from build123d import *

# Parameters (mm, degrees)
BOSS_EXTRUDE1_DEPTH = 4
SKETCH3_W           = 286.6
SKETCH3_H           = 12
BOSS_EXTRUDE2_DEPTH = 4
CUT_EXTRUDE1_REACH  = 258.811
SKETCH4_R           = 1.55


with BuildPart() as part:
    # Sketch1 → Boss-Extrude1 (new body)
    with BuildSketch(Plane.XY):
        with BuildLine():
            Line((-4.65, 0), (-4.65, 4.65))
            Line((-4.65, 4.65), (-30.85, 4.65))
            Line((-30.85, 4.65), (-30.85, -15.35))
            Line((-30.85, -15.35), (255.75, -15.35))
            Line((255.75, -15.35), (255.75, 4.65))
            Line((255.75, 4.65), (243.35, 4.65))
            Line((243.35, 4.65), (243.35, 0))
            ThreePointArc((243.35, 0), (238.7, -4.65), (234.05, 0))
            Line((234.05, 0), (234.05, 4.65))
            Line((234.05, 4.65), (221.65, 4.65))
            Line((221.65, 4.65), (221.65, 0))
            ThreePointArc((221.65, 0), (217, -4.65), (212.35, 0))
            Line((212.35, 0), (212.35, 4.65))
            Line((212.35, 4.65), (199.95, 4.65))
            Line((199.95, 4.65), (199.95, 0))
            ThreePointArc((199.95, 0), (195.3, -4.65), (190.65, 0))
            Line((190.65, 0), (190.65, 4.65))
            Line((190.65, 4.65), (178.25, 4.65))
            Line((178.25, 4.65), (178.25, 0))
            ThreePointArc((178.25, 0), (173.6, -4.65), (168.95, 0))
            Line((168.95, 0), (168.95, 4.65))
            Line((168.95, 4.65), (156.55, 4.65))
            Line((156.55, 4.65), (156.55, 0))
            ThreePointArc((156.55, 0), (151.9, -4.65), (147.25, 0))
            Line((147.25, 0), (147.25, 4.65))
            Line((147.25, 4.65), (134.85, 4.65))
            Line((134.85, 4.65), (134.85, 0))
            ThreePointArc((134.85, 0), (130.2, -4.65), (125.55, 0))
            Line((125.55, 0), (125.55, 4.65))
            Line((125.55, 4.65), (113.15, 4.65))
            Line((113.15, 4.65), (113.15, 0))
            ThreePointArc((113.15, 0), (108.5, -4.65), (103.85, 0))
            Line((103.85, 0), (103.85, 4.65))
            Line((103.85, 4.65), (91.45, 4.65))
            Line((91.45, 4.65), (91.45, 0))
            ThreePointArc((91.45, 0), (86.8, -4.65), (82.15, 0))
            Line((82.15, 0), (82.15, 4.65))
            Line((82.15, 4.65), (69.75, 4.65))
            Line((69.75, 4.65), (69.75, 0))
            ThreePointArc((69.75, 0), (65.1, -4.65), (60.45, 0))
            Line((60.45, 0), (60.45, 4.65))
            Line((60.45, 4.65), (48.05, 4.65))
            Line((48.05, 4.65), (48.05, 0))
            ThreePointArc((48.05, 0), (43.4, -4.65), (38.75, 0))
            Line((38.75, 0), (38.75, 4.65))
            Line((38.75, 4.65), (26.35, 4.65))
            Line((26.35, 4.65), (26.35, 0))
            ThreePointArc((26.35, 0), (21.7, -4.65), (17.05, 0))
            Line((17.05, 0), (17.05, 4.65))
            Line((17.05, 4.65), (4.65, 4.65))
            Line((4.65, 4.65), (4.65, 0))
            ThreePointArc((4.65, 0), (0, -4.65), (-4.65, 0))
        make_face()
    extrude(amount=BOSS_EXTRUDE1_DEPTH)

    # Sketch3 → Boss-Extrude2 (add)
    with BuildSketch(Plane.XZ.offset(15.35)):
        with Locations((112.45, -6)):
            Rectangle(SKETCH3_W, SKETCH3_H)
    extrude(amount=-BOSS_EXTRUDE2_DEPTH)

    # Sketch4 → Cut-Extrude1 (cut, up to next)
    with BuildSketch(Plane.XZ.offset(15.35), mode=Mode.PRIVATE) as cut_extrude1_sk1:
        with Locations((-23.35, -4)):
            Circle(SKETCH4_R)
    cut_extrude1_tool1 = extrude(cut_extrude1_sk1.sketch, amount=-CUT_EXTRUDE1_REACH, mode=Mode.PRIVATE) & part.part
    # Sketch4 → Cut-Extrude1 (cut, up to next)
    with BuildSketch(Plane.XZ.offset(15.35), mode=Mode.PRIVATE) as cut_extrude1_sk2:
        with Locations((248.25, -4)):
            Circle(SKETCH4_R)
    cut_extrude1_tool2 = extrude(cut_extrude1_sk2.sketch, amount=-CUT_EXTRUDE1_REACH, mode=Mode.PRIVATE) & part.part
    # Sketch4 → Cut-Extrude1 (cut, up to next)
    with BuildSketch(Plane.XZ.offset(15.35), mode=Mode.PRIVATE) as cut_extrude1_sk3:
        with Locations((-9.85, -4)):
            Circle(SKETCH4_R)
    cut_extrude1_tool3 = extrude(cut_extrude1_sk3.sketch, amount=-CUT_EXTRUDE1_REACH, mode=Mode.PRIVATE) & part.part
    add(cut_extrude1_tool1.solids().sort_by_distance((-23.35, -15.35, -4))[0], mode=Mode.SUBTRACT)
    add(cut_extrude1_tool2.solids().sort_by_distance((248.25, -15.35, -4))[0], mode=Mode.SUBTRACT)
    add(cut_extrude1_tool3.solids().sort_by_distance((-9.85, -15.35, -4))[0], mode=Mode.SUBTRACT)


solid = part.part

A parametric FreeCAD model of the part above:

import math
import FreeCAD as App
import Part
import Sketcher

doc = App.newDocument("Part")
params = doc.addObject("Spreadsheet::Sheet", "Params")
for row, (alias, value) in enumerate([
    ("sketch1_height", "20 mm"),
    ("sketch1_radius", "4.65 mm"),
    ("sketch1_width", "26.2 mm"),
    ("sketch1_width2", "286.6 mm"),
    ("sketch1_height2", "4.65 mm"),
    ("pad1_length", "4 mm"),
    ("sketch2_height", "12 mm"),
    ("sketch2_width", "286.6 mm"),
    ("pad2_length", "4 mm"),
    ("sketch3_diameter", "3.1 mm"),
    ("sketch4_diameter", "3.1 mm"),
    ("sketch5_diameter", "3.1 mm"),
], start=1):
    params.set(f"A{row}", alias)
    params.set(f"B{row}", "=" + value)
    params.setAlias(f"B{row}", alias)

body = doc.addObject("PartDesign::Body", "Body")

# Sketch on XY plane
sketch1 = body.newObject("Sketcher::SketchObject", "Sketch")
sketch1.AttachmentSupport = (doc.getObject("XY_Plane"), [""])
sketch1.MapMode = "FlatFace"
sketch1.addGeometry(Part.LineSegment(App.Vector(-4.65, 0, 0), App.Vector(-4.65, 4.65, 0)), False)
sketch1.addGeometry(Part.LineSegment(App.Vector(-4.65, 4.65, 0), App.Vector(-30.85, 4.65, 0)), False)
sketch1.addGeometry(Part.LineSegment(App.Vector(-30.85, 4.65, 0), App.Vector(-30.85, -15.35, 0)), False)
sketch1.addGeometry(Part.LineSegment(App.Vector(-30.85, -15.35, 0), App.Vector(255.75, -15.35, 0)), False)
sketch1.addGeometry(Part.LineSegment(App.Vector(255.75, -15.35, 0), App.Vector(255.75, 4.65, 0)), False)
sketch1.addGeometry(Part.LineSegment(App.Vector(255.75, 4.65, 0), App.Vector(243.35, 4.65, 0)), False)
sketch1.addGeometry(Part.LineSegment(App.Vector(243.35, 4.65, 0), App.Vector(243.35, 0, 0)), False)
sketch1.addGeometry(Part.ArcOfCircle(Part.Circle(App.Vector(238.7, 0, 0), App.Vector(0, 0, 1), 4.65), math.radians(180), math.radians(360)), False)
sketch1.addGeometry(Part.LineSegment(App.Vector(234.05, 0, 0), App.Vector(234.05, 4.65, 0)), False)
sketch1.addGeometry(Part.LineSegment(App.Vector(234.05, 4.65, 0), App.Vector(221.65, 4.65, 0)), False)
sketch1.addGeometry(Part.LineSegment(App.Vector(221.65, 4.65, 0), App.Vector(221.65, 0, 0)), False)
sketch1.addGeometry(Part.ArcOfCircle(Part.Circle(App.Vector(217, 0, 0), App.Vector(0, 0, 1), 4.65), math.radians(180), math.radians(360)), False)
sketch1.addGeometry(Part.LineSegment(App.Vector(212.35, 0, 0), App.Vector(212.35, 4.65, 0)), False)
sketch1.addGeometry(Part.LineSegment(App.Vector(212.35, 4.65, 0), App.Vector(199.95, 4.65, 0)), False)
sketch1.addGeometry(Part.LineSegment(App.Vector(199.95, 4.65, 0), App.Vector(199.95, 0, 0)), False)
sketch1.addGeometry(Part.ArcOfCircle(Part.Circle(App.Vector(195.3, 0, 0), App.Vector(0, 0, 1), 4.65), math.radians(180), math.radians(360)), False)
sketch1.addGeometry(Part.LineSegment(App.Vector(190.65, 0, 0), App.Vector(190.65, 4.65, 0)), False)
sketch1.addGeometry(Part.LineSegment(App.Vector(190.65, 4.65, 0), App.Vector(178.25, 4.65, 0)), False)
sketch1.addGeometry(Part.LineSegment(App.Vector(178.25, 4.65, 0), App.Vector(178.25, 0, 0)), False)
sketch1.addGeometry(Part.ArcOfCircle(Part.Circle(App.Vector(173.6, 0, 0), App.Vector(0, 0, 1), 4.65), math.radians(180), math.radians(360)), False)
sketch1.addGeometry(Part.LineSegment(App.Vector(168.95, 0, 0), App.Vector(168.95, 4.65, 0)), False)
sketch1.addGeometry(Part.LineSegment(App.Vector(168.95, 4.65, 0), App.Vector(156.55, 4.65, 0)), False)
sketch1.addGeometry(Part.LineSegment(App.Vector(156.55, 4.65, 0), App.Vector(156.55, 0, 0)), False)
sketch1.addGeometry(Part.ArcOfCircle(Part.Circle(App.Vector(151.9, 0, 0), App.Vector(0, 0, 1), 4.65), math.radians(180), math.radians(360)), False)
sketch1.addGeometry(Part.LineSegment(App.Vector(147.25, 0, 0), App.Vector(147.25, 4.65, 0)), False)
sketch1.addGeometry(Part.LineSegment(App.Vector(147.25, 4.65, 0), App.Vector(134.85, 4.65, 0)), False)
sketch1.addGeometry(Part.LineSegment(App.Vector(134.85, 4.65, 0), App.Vector(134.85, 0, 0)), False)
sketch1.addGeometry(Part.ArcOfCircle(Part.Circle(App.Vector(130.2, 0, 0), App.Vector(0, 0, 1), 4.65), math.radians(180), math.radians(360)), False)
sketch1.addGeometry(Part.LineSegment(App.Vector(125.55, 0, 0), App.Vector(125.55, 4.65, 0)), False)
sketch1.addGeometry(Part.LineSegment(App.Vector(125.55, 4.65, 0), App.Vector(113.15, 4.65, 0)), False)
sketch1.addGeometry(Part.LineSegment(App.Vector(113.15, 4.65, 0), App.Vector(113.15, 0, 0)), False)
sketch1.addGeometry(Part.ArcOfCircle(Part.Circle(App.Vector(108.5, 0, 0), App.Vector(0, 0, 1), 4.65), math.radians(180), math.radians(360)), False)
sketch1.addGeometry(Part.LineSegment(App.Vector(103.85, 0, 0), App.Vector(103.85, 4.65, 0)), False)
sketch1.addGeometry(Part.LineSegment(App.Vector(103.85, 4.65, 0), App.Vector(91.45, 4.65, 0)), False)
sketch1.addGeometry(Part.LineSegment(App.Vector(91.45, 4.65, 0), App.Vector(91.45, 0, 0)), False)
sketch1.addGeometry(Part.ArcOfCircle(Part.Circle(App.Vector(86.8, 0, 0), App.Vector(0, 0, 1), 4.65), math.radians(180), math.radians(360)), False)
sketch1.addGeometry(Part.LineSegment(App.Vector(82.15, 0, 0), App.Vector(82.15, 4.65, 0)), False)
sketch1.addGeometry(Part.LineSegment(App.Vector(82.15, 4.65, 0), App.Vector(69.75, 4.65, 0)), False)
sketch1.addGeometry(Part.LineSegment(App.Vector(69.75, 4.65, 0), App.Vector(69.75, 0, 0)), False)
sketch1.addGeometry(Part.ArcOfCircle(Part.Circle(App.Vector(65.1, 0, 0), App.Vector(0, 0, 1), 4.65), math.radians(180), math.radians(360)), False)
sketch1.addGeometry(Part.LineSegment(App.Vector(60.45, 0, 0), App.Vector(60.45, 4.65, 0)), False)
sketch1.addGeometry(Part.LineSegment(App.Vector(60.45, 4.65, 0), App.Vector(48.05, 4.65, 0)), False)
sketch1.addGeometry(Part.LineSegment(App.Vector(48.05, 4.65, 0), App.Vector(48.05, 0, 0)), False)
sketch1.addGeometry(Part.ArcOfCircle(Part.Circle(App.Vector(43.4, 0, 0), App.Vector(0, 0, 1), 4.65), math.radians(180), math.radians(360)), False)
sketch1.addGeometry(Part.LineSegment(App.Vector(38.75, 0, 0), App.Vector(38.75, 4.65, 0)), False)
sketch1.addGeometry(Part.LineSegment(App.Vector(38.75, 4.65, 0), App.Vector(26.35, 4.65, 0)), False)
sketch1.addGeometry(Part.LineSegment(App.Vector(26.35, 4.65, 0), App.Vector(26.35, 0, 0)), False)
sketch1.addGeometry(Part.ArcOfCircle(Part.Circle(App.Vector(21.7, 0, 0), App.Vector(0, 0, 1), 4.65), math.radians(180), math.radians(360)), False)
sketch1.addGeometry(Part.LineSegment(App.Vector(17.05, 0, 0), App.Vector(17.05, 4.65, 0)), False)
sketch1.addGeometry(Part.LineSegment(App.Vector(17.05, 4.65, 0), App.Vector(4.65, 4.65, 0)), False)
sketch1.addGeometry(Part.LineSegment(App.Vector(4.65, 4.65, 0), App.Vector(4.65, 0, 0)), False)
sketch1.addGeometry(Part.ArcOfCircle(Part.Circle(App.Vector(0, 0, 0), App.Vector(0, 0, 1), 4.65), math.radians(180), math.radians(360)), False)
sketch1.addConstraint(Sketcher.Constraint("Coincident", 0, 2, 1, 1))
sketch1.addConstraint(Sketcher.Constraint("Coincident", 1, 2, 2, 1))
sketch1.addConstraint(Sketcher.Constraint("Coincident", 2, 2, 3, 1))
sketch1.addConstraint(Sketcher.Constraint("Coincident", 3, 2, 4, 1))
sketch1.addConstraint(Sketcher.Constraint("Coincident", 4, 2, 5, 1))
sketch1.addConstraint(Sketcher.Constraint("Coincident", 5, 2, 6, 1))
sketch1.addConstraint(Sketcher.Constraint("Tangent", 6, 2, 7, 2))
sketch1.addConstraint(Sketcher.Constraint("Tangent", 7, 1, 8, 1))
sketch1.addConstraint(Sketcher.Constraint("Coincident", 8, 2, 9, 1))
sketch1.addConstraint(Sketcher.Constraint("Coincident", 9, 2, 10, 1))
sketch1.addConstraint(Sketcher.Constraint("Tangent", 10, 2, 11, 2))
sketch1.addConstraint(Sketcher.Constraint("Tangent", 11, 1, 12, 1))
sketch1.addConstraint(Sketcher.Constraint("Coincident", 12, 2, 13, 1))
sketch1.addConstraint(Sketcher.Constraint("Coincident", 13, 2, 14, 1))
sketch1.addConstraint(Sketcher.Constraint("Tangent", 14, 2, 15, 2))
sketch1.addConstraint(Sketcher.Constraint("Tangent", 15, 1, 16, 1))
sketch1.addConstraint(Sketcher.Constraint("Coincident", 16, 2, 17, 1))
sketch1.addConstraint(Sketcher.Constraint("Coincident", 17, 2, 18, 1))
sketch1.addConstraint(Sketcher.Constraint("Tangent", 18, 2, 19, 2))
sketch1.addConstraint(Sketcher.Constraint("Tangent", 19, 1, 20, 1))
sketch1.addConstraint(Sketcher.Constraint("Coincident", 20, 2, 21, 1))
sketch1.addConstraint(Sketcher.Constraint("Coincident", 21, 2, 22, 1))
sketch1.addConstraint(Sketcher.Constraint("Tangent", 22, 2, 23, 2))
sketch1.addConstraint(Sketcher.Constraint("Tangent", 23, 1, 24, 1))
sketch1.addConstraint(Sketcher.Constraint("Coincident", 24, 2, 25, 1))
sketch1.addConstraint(Sketcher.Constraint("Coincident", 25, 2, 26, 1))
sketch1.addConstraint(Sketcher.Constraint("Tangent", 26, 2, 27, 2))
sketch1.addConstraint(Sketcher.Constraint("Tangent", 27, 1, 28, 1))
sketch1.addConstraint(Sketcher.Constraint("Coincident", 28, 2, 29, 1))
sketch1.addConstraint(Sketcher.Constraint("Coincident", 29, 2, 30, 1))
sketch1.addConstraint(Sketcher.Constraint("Tangent", 30, 2, 31, 2))
sketch1.addConstraint(Sketcher.Constraint("Tangent", 31, 1, 32, 1))
sketch1.addConstraint(Sketcher.Constraint("Coincident", 32, 2, 33, 1))
sketch1.addConstraint(Sketcher.Constraint("Coincident", 33, 2, 34, 1))
sketch1.addConstraint(Sketcher.Constraint("Tangent", 34, 2, 35, 2))
sketch1.addConstraint(Sketcher.Constraint("Tangent", 35, 1, 36, 1))
sketch1.addConstraint(Sketcher.Constraint("Coincident", 36, 2, 37, 1))
sketch1.addConstraint(Sketcher.Constraint("Coincident", 37, 2, 38, 1))
sketch1.addConstraint(Sketcher.Constraint("Tangent", 38, 2, 39, 2))
sketch1.addConstraint(Sketcher.Constraint("Tangent", 39, 1, 40, 1))
sketch1.addConstraint(Sketcher.Constraint("Coincident", 40, 2, 41, 1))
sketch1.addConstraint(Sketcher.Constraint("Coincident", 41, 2, 42, 1))
sketch1.addConstraint(Sketcher.Constraint("Tangent", 42, 2, 43, 2))
sketch1.addConstraint(Sketcher.Constraint("Tangent", 43, 1, 44, 1))
sketch1.addConstraint(Sketcher.Constraint("Coincident", 44, 2, 45, 1))
sketch1.addConstraint(Sketcher.Constraint("Coincident", 45, 2, 46, 1))
sketch1.addConstraint(Sketcher.Constraint("Tangent", 46, 2, 47, 2))
sketch1.addConstraint(Sketcher.Constraint("Tangent", 47, 1, 48, 1))
sketch1.addConstraint(Sketcher.Constraint("Coincident", 48, 2, 49, 1))
sketch1.addConstraint(Sketcher.Constraint("Coincident", 49, 2, 50, 1))
sketch1.addConstraint(Sketcher.Constraint("Tangent", 50, 2, 51, 2))
sketch1.addConstraint(Sketcher.Constraint("Tangent", 51, 1, 0, 1))
sketch1.addConstraint(Sketcher.Constraint("Vertical", 0))
sketch1.addConstraint(Sketcher.Constraint("Horizontal", 1))
sketch1.addConstraint(Sketcher.Constraint("Vertical", 2))
sketch1.addConstraint(Sketcher.Constraint("Horizontal", 3))
sketch1.addConstraint(Sketcher.Constraint("Vertical", 4))
sketch1.addConstraint(Sketcher.Constraint("Horizontal", 5))
sketch1.addConstraint(Sketcher.Constraint("Vertical", 6))
sketch1.addConstraint(Sketcher.Constraint("Vertical", 8))
sketch1.addConstraint(Sketcher.Constraint("Horizontal", 9))
sketch1.addConstraint(Sketcher.Constraint("Vertical", 10))
sketch1.addConstraint(Sketcher.Constraint("Vertical", 12))
sketch1.addConstraint(Sketcher.Constraint("Horizontal", 13))
sketch1.addConstraint(Sketcher.Constraint("Vertical", 14))
sketch1.addConstraint(Sketcher.Constraint("Vertical", 16))
sketch1.addConstraint(Sketcher.Constraint("Horizontal", 17))
sketch1.addConstraint(Sketcher.Constraint("Vertical", 18))
sketch1.addConstraint(Sketcher.Constraint("Vertical", 20))
sketch1.addConstraint(Sketcher.Constraint("Horizontal", 21))
sketch1.addConstraint(Sketcher.Constraint("Vertical", 22))
sketch1.addConstraint(Sketcher.Constraint("Vertical", 24))
sketch1.addConstraint(Sketcher.Constraint("Horizontal", 25))
sketch1.addConstraint(Sketcher.Constraint("Vertical", 26))
sketch1.addConstraint(Sketcher.Constraint("Vertical", 28))
sketch1.addConstraint(Sketcher.Constraint("Horizontal", 29))
sketch1.addConstraint(Sketcher.Constraint("Vertical", 30))
sketch1.addConstraint(Sketcher.Constraint("Vertical", 32))
sketch1.addConstraint(Sketcher.Constraint("Horizontal", 33))
sketch1.addConstraint(Sketcher.Constraint("Vertical", 34))
sketch1.addConstraint(Sketcher.Constraint("Vertical", 36))
sketch1.addConstraint(Sketcher.Constraint("Horizontal", 37))
sketch1.addConstraint(Sketcher.Constraint("Vertical", 38))
sketch1.addConstraint(Sketcher.Constraint("Vertical", 40))
sketch1.addConstraint(Sketcher.Constraint("Horizontal", 41))
sketch1.addConstraint(Sketcher.Constraint("Vertical", 42))
sketch1.addConstraint(Sketcher.Constraint("Vertical", 44))
sketch1.addConstraint(Sketcher.Constraint("Horizontal", 45))
sketch1.addConstraint(Sketcher.Constraint("Vertical", 46))
sketch1.addConstraint(Sketcher.Constraint("Vertical", 48))
sketch1.addConstraint(Sketcher.Constraint("Horizontal", 49))
sketch1.addConstraint(Sketcher.Constraint("Vertical", 50))
sketch1.addConstraint(Sketcher.Constraint("Coincident", 51, 3, -1, 1))
sketch1.addConstraint(Sketcher.Constraint("Equal", 7, 11))
sketch1.addConstraint(Sketcher.Constraint("Equal", 11, 15))
sketch1.addConstraint(Sketcher.Constraint("Equal", 15, 19))
sketch1.addConstraint(Sketcher.Constraint("Equal", 19, 23))
sketch1.addConstraint(Sketcher.Constraint("Equal", 23, 27))
sketch1.addConstraint(Sketcher.Constraint("Equal", 27, 31))
sketch1.addConstraint(Sketcher.Constraint("Equal", 31, 35))
sketch1.addConstraint(Sketcher.Constraint("Equal", 35, 39))
sketch1.addConstraint(Sketcher.Constraint("Equal", 39, 43))
sketch1.addConstraint(Sketcher.Constraint("Equal", 43, 47))
sketch1.addConstraint(Sketcher.Constraint("Equal", 47, 51))
sketch1.addConstraint(Sketcher.Constraint("PointOnObject", 7, 3, -1))
sketch1.addConstraint(Sketcher.Constraint("PointOnObject", 11, 3, -1))
sketch1.addConstraint(Sketcher.Constraint("PointOnObject", 15, 3, -1))
sketch1.addConstraint(Sketcher.Constraint("PointOnObject", 19, 3, -1))
sketch1.addConstraint(Sketcher.Constraint("PointOnObject", 23, 3, -1))
sketch1.addConstraint(Sketcher.Constraint("PointOnObject", 27, 3, -1))
sketch1.addConstraint(Sketcher.Constraint("PointOnObject", 31, 3, -1))
sketch1.addConstraint(Sketcher.Constraint("PointOnObject", 35, 3, -1))
sketch1.addConstraint(Sketcher.Constraint("PointOnObject", 39, 3, -1))
sketch1.addConstraint(Sketcher.Constraint("PointOnObject", 43, 3, -1))
sketch1.addConstraint(Sketcher.Constraint("PointOnObject", 47, 3, -1))
sketch1.addConstraint(Sketcher.Constraint("Horizontal", 1, 2, 4, 2))
sketch1.addConstraint(Sketcher.Constraint("Horizontal", 5, 2, 8, 2))
sketch1.addConstraint(Sketcher.Constraint("Horizontal", 9, 2, 12, 2))
sketch1.addConstraint(Sketcher.Constraint("Horizontal", 13, 2, 16, 2))
sketch1.addConstraint(Sketcher.Constraint("Horizontal", 17, 2, 20, 2))
sketch1.addConstraint(Sketcher.Constraint("Horizontal", 21, 2, 24, 2))
sketch1.addConstraint(Sketcher.Constraint("Horizontal", 25, 2, 28, 2))
sketch1.addConstraint(Sketcher.Constraint("Horizontal", 29, 2, 32, 2))
sketch1.addConstraint(Sketcher.Constraint("Horizontal", 33, 2, 36, 2))
sketch1.addConstraint(Sketcher.Constraint("Horizontal", 37, 2, 40, 2))
sketch1.addConstraint(Sketcher.Constraint("Horizontal", 41, 2, 44, 2))
sketch1.addConstraint(Sketcher.Constraint("Horizontal", 45, 2, 48, 2))
sketch1.addConstraint(Sketcher.Constraint("Equal", 5, 9))
sketch1.addConstraint(Sketcher.Constraint("Equal", 9, 13))
sketch1.addConstraint(Sketcher.Constraint("Equal", 13, 17))
sketch1.addConstraint(Sketcher.Constraint("Equal", 17, 21))
sketch1.addConstraint(Sketcher.Constraint("Equal", 21, 25))
sketch1.addConstraint(Sketcher.Constraint("Equal", 25, 29))
sketch1.addConstraint(Sketcher.Constraint("Equal", 29, 33))
sketch1.addConstraint(Sketcher.Constraint("Equal", 33, 37))
sketch1.addConstraint(Sketcher.Constraint("Equal", 37, 41))
sketch1.addConstraint(Sketcher.Constraint("Equal", 41, 45))
sketch1.addConstraint(Sketcher.Constraint("Equal", 45, 49))
sketch1.addConstraint(Sketcher.Constraint("DistanceY", 2, 2, 2, 1, 20.0))
sketch1.addConstraint(Sketcher.Constraint("Radius", 7, 4.65))
sketch1.addConstraint(Sketcher.Constraint("DistanceX", 1, 2, 1, 1, 26.2))
sketch1.addConstraint(Sketcher.Constraint("DistanceX", 3, 1, 3, 2, 286.6))
sketch1.addConstraint(Sketcher.Constraint("DistanceY", 0, 1, 0, 2, 4.65))
sketch1.setExpression("Constraints[138]", "Params.sketch1_height")
sketch1.setExpression("Constraints[139]", "Params.sketch1_radius")
sketch1.setExpression("Constraints[140]", "Params.sketch1_width")
sketch1.setExpression("Constraints[141]", "Params.sketch1_width2")
sketch1.setExpression("Constraints[142]", "Params.sketch1_height2")
pad1 = body.newObject("PartDesign::Pad", "Pad")
pad1.Profile = sketch1
pad1.setExpression("Length", "Params.pad1_length")

# Sketch on XZ plane
sketch2 = body.newObject("Sketcher::SketchObject", "Sketch001")
sketch2.AttachmentSupport = (doc.getObject("XZ_Plane"), [""])
sketch2.MapMode = "FlatFace"
sketch2.AttachmentOffset = App.Placement(App.Vector(0, 0, 15.35), App.Rotation())
sketch2.addGeometry(Part.LineSegment(App.Vector(-30.85, 0, 0), App.Vector(-30.85, -12, 0)), False)
sketch2.addGeometry(Part.LineSegment(App.Vector(-30.85, -12, 0), App.Vector(255.75, -12, 0)), False)
sketch2.addGeometry(Part.LineSegment(App.Vector(255.75, -12, 0), App.Vector(255.75, 0, 0)), False)
sketch2.addGeometry(Part.LineSegment(App.Vector(255.75, 0, 0), App.Vector(-30.85, 0, 0)), False)
sketch2.addConstraint(Sketcher.Constraint("Coincident", 0, 2, 1, 1))
sketch2.addConstraint(Sketcher.Constraint("Coincident", 1, 2, 2, 1))
sketch2.addConstraint(Sketcher.Constraint("Coincident", 2, 2, 3, 1))
sketch2.addConstraint(Sketcher.Constraint("Coincident", 3, 2, 0, 1))
sketch2.addConstraint(Sketcher.Constraint("Vertical", 0))
sketch2.addConstraint(Sketcher.Constraint("Horizontal", 1))
sketch2.addConstraint(Sketcher.Constraint("Vertical", 2))
sketch2.addConstraint(Sketcher.Constraint("Horizontal", 3))
sketch2.addConstraint(Sketcher.Constraint("PointOnObject", 2, 2, -1))
sketch2.addConstraint(Sketcher.Constraint("DistanceY", 0, 2, 0, 1, 12.0))
sketch2.addConstraint(Sketcher.Constraint("DistanceX", 1, 1, 1, 2, 286.6))
sketch2.addConstraint(Sketcher.Constraint("DistanceX", 0, 2, -1, 1, 30.85))
sketch2.setExpression("Constraints[9]", "Params.sketch2_height")
sketch2.setExpression("Constraints[10]", "Params.sketch2_width")
pad2 = body.newObject("PartDesign::Pad", "Pad001")
pad2.Profile = sketch2
pad2.setExpression("Length", "Params.pad2_length")
pad2.Reversed = True

# Sketch on XZ plane
sketch3 = body.newObject("Sketcher::SketchObject", "Sketch002")
sketch3.AttachmentSupport = (doc.getObject("XZ_Plane"), [""])
sketch3.MapMode = "FlatFace"
sketch3.AttachmentOffset = App.Placement(App.Vector(0, 0, 15.35), App.Rotation())
sketch3.addGeometry(Part.Circle(App.Vector(-23.35, -4, 0), App.Vector(0, 0, 1), 1.55), False)
sketch3.addConstraint(Sketcher.Constraint("Diameter", 0, 3.1))
sketch3.addConstraint(Sketcher.Constraint("DistanceY", 0, 3, -1, 1, 4.0))
sketch3.addConstraint(Sketcher.Constraint("DistanceX", 0, 3, -1, 1, 23.35))
sketch3.setExpression("Constraints[0]", "Params.sketch3_diameter")
pocket1 = body.newObject("PartDesign::Pocket", "Pocket")
pocket1.Profile = sketch3
pocket1.Type = "UpToFirst"

# Sketch on XZ plane
sketch4 = body.newObject("Sketcher::SketchObject", "Sketch003")
sketch4.AttachmentSupport = (doc.getObject("XZ_Plane"), [""])
sketch4.MapMode = "FlatFace"
sketch4.AttachmentOffset = App.Placement(App.Vector(0, 0, 15.35), App.Rotation())
sketch4.addGeometry(Part.Circle(App.Vector(248.25, -4, 0), App.Vector(0, 0, 1), 1.55), False)
sketch4.addConstraint(Sketcher.Constraint("Diameter", 0, 3.1))
sketch4.addConstraint(Sketcher.Constraint("DistanceY", 0, 3, -1, 1, 4.0))
sketch4.addConstraint(Sketcher.Constraint("DistanceX", -1, 1, 0, 3, 248.25))
sketch4.setExpression("Constraints[0]", "Params.sketch4_diameter")
pocket2 = body.newObject("PartDesign::Pocket", "Pocket001")
pocket2.Profile = sketch4
pocket2.Type = "UpToFirst"

# Sketch on XZ plane
sketch5 = body.newObject("Sketcher::SketchObject", "Sketch004")
sketch5.AttachmentSupport = (doc.getObject("XZ_Plane"), [""])
sketch5.MapMode = "FlatFace"
sketch5.AttachmentOffset = App.Placement(App.Vector(0, 0, 15.35), App.Rotation())
sketch5.addGeometry(Part.Circle(App.Vector(-9.85, -4, 0), App.Vector(0, 0, 1), 1.55), False)
sketch5.addConstraint(Sketcher.Constraint("Diameter", 0, 3.1))
sketch5.addConstraint(Sketcher.Constraint("DistanceY", 0, 3, -1, 1, 4.0))
sketch5.addConstraint(Sketcher.Constraint("DistanceX", 0, 3, -1, 1, 9.85))
sketch5.setExpression("Constraints[0]", "Params.sketch5_diameter")
pocket3 = body.newObject("PartDesign::Pocket", "Pocket002")
pocket3.Profile = sketch5
pocket3.Type = "UpToFirst"

doc.recompute()
